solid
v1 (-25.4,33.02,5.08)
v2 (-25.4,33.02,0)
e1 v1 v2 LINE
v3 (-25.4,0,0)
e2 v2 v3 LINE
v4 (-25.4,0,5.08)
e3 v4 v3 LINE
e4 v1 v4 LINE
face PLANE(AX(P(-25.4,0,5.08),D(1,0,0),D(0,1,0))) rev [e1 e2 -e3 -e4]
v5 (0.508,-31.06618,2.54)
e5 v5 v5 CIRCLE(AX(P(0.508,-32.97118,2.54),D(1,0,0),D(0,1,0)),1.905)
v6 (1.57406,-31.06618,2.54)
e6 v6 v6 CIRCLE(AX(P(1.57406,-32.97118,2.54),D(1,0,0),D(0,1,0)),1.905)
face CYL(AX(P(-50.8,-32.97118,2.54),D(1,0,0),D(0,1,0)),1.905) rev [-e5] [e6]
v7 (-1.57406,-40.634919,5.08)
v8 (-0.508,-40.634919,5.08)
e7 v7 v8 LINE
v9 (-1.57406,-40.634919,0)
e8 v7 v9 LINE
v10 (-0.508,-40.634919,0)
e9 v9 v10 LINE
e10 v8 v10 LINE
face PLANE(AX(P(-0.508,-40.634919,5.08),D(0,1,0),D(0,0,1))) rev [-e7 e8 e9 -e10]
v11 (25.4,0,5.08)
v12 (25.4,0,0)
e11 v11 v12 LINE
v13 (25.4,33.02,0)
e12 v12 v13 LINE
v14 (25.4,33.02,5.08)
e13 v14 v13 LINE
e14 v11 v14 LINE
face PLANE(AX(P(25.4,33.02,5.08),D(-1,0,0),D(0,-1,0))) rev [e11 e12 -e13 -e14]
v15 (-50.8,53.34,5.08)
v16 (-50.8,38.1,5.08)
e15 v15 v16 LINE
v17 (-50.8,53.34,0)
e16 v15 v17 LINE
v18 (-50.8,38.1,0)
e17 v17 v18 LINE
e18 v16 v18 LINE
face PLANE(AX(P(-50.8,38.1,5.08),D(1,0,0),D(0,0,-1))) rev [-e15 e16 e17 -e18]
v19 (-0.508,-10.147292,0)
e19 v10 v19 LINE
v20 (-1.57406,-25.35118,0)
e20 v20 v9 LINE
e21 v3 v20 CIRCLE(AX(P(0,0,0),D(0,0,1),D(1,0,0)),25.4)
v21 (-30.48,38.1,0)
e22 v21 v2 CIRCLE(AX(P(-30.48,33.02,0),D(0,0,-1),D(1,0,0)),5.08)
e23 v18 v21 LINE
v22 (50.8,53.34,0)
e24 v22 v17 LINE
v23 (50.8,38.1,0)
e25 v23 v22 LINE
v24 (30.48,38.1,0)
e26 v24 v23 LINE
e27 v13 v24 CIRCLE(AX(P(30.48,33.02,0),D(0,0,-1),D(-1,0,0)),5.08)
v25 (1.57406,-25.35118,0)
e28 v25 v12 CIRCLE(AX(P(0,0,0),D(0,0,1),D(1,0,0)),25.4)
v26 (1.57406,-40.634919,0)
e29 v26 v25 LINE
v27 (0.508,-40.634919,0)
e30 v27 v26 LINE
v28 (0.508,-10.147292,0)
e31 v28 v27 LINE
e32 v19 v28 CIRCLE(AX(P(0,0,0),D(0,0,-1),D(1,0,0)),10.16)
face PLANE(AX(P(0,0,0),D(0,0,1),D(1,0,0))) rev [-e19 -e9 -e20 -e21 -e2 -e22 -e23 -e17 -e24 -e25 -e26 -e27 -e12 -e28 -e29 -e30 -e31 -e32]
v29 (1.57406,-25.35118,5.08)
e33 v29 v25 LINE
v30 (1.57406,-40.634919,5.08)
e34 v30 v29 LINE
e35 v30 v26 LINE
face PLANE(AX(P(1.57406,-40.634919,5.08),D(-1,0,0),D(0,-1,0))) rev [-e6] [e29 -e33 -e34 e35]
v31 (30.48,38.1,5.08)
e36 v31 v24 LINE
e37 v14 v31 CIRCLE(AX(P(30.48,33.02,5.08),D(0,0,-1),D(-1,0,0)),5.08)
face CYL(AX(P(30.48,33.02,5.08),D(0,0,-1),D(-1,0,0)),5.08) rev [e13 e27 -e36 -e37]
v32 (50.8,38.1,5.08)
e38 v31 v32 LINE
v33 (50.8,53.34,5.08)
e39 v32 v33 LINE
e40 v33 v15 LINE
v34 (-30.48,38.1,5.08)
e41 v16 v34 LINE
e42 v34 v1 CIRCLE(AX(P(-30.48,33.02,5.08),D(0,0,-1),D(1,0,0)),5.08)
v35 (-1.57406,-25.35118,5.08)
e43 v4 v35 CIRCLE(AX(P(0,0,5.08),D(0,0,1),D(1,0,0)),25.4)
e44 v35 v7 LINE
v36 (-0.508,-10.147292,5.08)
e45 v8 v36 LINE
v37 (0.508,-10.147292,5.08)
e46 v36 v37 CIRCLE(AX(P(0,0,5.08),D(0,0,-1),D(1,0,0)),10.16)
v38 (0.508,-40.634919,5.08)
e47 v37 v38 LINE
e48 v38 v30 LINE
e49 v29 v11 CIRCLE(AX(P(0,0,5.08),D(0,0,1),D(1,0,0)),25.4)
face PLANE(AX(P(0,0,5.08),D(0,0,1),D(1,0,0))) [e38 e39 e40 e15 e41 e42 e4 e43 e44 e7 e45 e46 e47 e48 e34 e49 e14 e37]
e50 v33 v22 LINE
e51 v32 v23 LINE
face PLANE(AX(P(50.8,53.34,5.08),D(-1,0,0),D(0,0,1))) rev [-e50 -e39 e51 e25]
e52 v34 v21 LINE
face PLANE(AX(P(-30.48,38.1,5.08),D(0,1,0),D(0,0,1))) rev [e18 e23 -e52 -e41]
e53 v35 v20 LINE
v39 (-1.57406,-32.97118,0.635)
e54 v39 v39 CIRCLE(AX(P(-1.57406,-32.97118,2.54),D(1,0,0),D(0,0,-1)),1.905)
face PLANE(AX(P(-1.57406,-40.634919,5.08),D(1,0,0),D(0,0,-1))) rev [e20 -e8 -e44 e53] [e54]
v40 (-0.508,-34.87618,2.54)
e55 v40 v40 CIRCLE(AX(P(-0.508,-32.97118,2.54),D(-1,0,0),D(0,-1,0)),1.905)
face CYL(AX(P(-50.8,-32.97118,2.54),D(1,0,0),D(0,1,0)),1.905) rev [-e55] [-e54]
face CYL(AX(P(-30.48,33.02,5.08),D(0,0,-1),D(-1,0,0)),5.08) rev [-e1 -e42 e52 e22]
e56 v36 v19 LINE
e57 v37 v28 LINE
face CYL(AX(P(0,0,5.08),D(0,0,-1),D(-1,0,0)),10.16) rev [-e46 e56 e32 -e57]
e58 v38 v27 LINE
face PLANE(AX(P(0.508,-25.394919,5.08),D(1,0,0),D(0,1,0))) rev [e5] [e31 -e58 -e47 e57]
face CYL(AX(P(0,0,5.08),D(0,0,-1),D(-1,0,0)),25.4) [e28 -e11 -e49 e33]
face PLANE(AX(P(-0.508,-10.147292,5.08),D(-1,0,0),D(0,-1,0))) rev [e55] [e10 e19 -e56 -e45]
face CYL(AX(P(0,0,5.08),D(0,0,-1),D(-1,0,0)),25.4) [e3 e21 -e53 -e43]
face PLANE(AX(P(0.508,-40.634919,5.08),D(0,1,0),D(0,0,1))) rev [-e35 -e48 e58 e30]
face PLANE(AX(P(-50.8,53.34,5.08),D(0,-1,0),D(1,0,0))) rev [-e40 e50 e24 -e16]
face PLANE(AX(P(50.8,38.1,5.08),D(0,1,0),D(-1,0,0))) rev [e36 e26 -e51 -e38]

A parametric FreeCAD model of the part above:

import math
import FreeCAD as App
import Part
import Sketcher

V = App.Vector
Q = App.Units.Quantity

doc = App.newDocument("Part")
body = doc.addObject("PartDesign::Body", "Body")

# Sketch on XY plane
sketch1 = body.newObject("Sketcher::SketchObject", "Sketch")
sketch1.AttachmentSupport = (doc.getObject("XY_Plane"), [""])
sketch1.MapMode = "FlatFace"
sketch1.addGeometry([
    Part.LineSegment(V(-25.4, 33.02, 0), V(-25.4, 0, 0)),  # 0
    Part.ArcOfCircle(Part.Circle(V(0, 0, 0), V(0, 0, 1), 25.4), math.radians(180), math.radians(266.447054)),  # 1
    Part.LineSegment(V(-1.57406, -25.35118, 0), V(-1.57406, -40.634919, 0)),  # 2
    Part.LineSegment(V(-1.57406, -40.634919, 0), V(-0.508, -40.634919, 0)),  # 3
    Part.LineSegment(V(-0.508, -40.634919, 0), V(-0.508, -10.147292, 0)),  # 4
    Part.ArcOfCircle(Part.Circle(V(0, 0, 0), V(0, 0, 1), 10.16), math.radians(-87.134016), math.radians(267.134016)),  # 5
    Part.LineSegment(V(0.508, -10.147292, 0), V(0.508, -40.634919, 0)),  # 6
    Part.LineSegment(V(0.508, -40.634919, 0), V(1.57406, -40.634919, 0)),  # 7
    Part.LineSegment(V(1.57406, -40.634919, 0), V(1.57406, -25.35118, 0)),  # 8
    Part.ArcOfCircle(Part.Circle(V(0, 0, 0), V(0, 0, 1), 25.4), math.radians(-86.447054), math.radians(0)),  # 9
    Part.LineSegment(V(25.4, 0, 0), V(25.4, 33.02, 0)),  # 10
    Part.ArcOfCircle(Part.Circle(V(30.48, 33.02, 0), V(0, 0, 1), 5.08), math.radians(90), math.radians(180)),  # 11
    Part.LineSegment(V(30.48, 38.1, 0), V(50.8, 38.1, 0)),  # 12
    Part.LineSegment(V(50.8, 38.1, 0), V(50.8, 53.34, 0)),  # 13
    Part.LineSegment(V(50.8, 53.34, 0), V(-50.8, 53.34, 0)),  # 14
    Part.LineSegment(V(-50.8, 53.34, 0), V(-50.8, 38.1, 0)),  # 15
    Part.LineSegment(V(-50.8, 38.1, 0), V(-30.48, 38.1, 0)),  # 16
    Part.ArcOfCircle(Part.Circle(V(-30.48, 33.02, 0), V(0, 0, 1), 5.08), math.radians(0), math.radians(90)),  # 17
], False)
sketch1.addConstraint([
    Sketcher.Constraint("Tangent", 0, 2, 1, 1),
    Sketcher.Constraint("Coincident", 1, 2, 2, 1),
    Sketcher.Constraint("Coincident", 2, 2, 3, 1),
    Sketcher.Constraint("Coincident", 3, 2, 4, 1),
    Sketcher.Constraint("Coincident", 4, 2, 5, 2),
    Sketcher.Constraint("Coincident", 5, 1, 6, 1),
    Sketcher.Constraint("Coincident", 6, 2, 7, 1),
    Sketcher.Constraint("Coincident", 7, 2, 8, 1),
    Sketcher.Constraint("Coincident", 8, 2, 9, 1),
    Sketcher.Constraint("Tangent", 9, 2, 10, 1),
    Sketcher.Constraint("Tangent", 10, 2, 11, 2),
    Sketcher.Constraint("Tangent", 11, 1, 12, 1),
    Sketcher.Constraint("Coincident", 12, 2, 13, 1),
    Sketcher.Constraint("Coincident", 13, 2, 14, 1),
    Sketcher.Constraint("Coincident", 14, 2, 15, 1),
    Sketcher.Constraint("Coincident", 15, 2, 16, 1),
    Sketcher.Constraint("Tangent", 16, 2, 17, 2),
    Sketcher.Constraint("Tangent", 17, 1, 0, 1),
    Sketcher.Constraint("Vertical", 0),
    Sketcher.Constraint("Vertical", 2),
    Sketcher.Constraint("Horizontal", 3),
    Sketcher.Constraint("Vertical", 4),
    Sketcher.Constraint("Vertical", 6),
    Sketcher.Constraint("Horizontal", 7),
    Sketcher.Constraint("Vertical", 8),
    Sketcher.Constraint("Vertical", 10),
    Sketcher.Constraint("Horizontal", 12),
    Sketcher.Constraint("Vertical", 13),
    Sketcher.Constraint("Horizontal", 14),
    Sketcher.Constraint("Vertical", 15),
    Sketcher.Constraint("Horizontal", 16),
    Sketcher.Constraint("Coincident", 1, 3, -1, 1),
    Sketcher.Constraint("Coincident", 5, 3, -1, 1),
    Sketcher.Constraint("Coincident", 9, 3, -1, 1),
    Sketcher.Constraint("Equal", 1, 9),
    Sketcher.Constraint("Equal", 11, 17),
    Sketcher.Constraint("Symmetric", 3, 2, 6, 2, -2),
    Sketcher.Constraint("Symmetric", 12, 2, 15, 2, -2),
    Sketcher.Constraint("Horizontal", 1, 2, 8, 2),
    Sketcher.Constraint("Radius", 1, Q("1 in")),
    Sketcher.Constraint("Radius", 5, Q("0.4 in")),
    Sketcher.Constraint("Radius", 11, Q("0.2 in")),
    Sketcher.Constraint("DistanceX", 14, 2, 14, 1, Q("4 in")),
    Sketcher.Constraint("DistanceY", 0, 2, 0, 1, Q("1.3 in")),
    Sketcher.Constraint("DistanceY", 13, 1, 13, 2, Q("0.6 in")),
    Sketcher.Constraint("DistanceX", 3, 2, -1, 1, Q("0.02 in")),
    Sketcher.Constraint("DistanceY", 2, 2, -1, 1, Q("1.5998 in")),
    Sketcher.Constraint("DistanceX", 3, 1, 3, 2, 1.06606),
])
pad1 = body.newObject("PartDesign::Pad", "Pad")
pad1.Profile = sketch1
pad1.Length = Q("0.2 in")

# Sketch on YZ plane
sketch2 = body.newObject("Sketcher::SketchObject", "Sketch001")
sketch2.AttachmentSupport = (doc.getObject("YZ_Plane"), [""])
sketch2.MapMode = "FlatFace"
sketch2.AttachmentOffset = App.Placement(V(0, 0, 1.57406), App.Rotation())
sketch2.addGeometry(Part.Circle(V(-32.97118, 2.54, 0), V(0, 0, 1), 1.905), False)
sketch2.addConstraint([
    Sketcher.Constraint("Diameter", 0, Q("0.15 in")),
    Sketcher.Constraint("DistanceY", -1, 1, 0, 3, Q("0.1 in")),
    Sketcher.Constraint("DistanceX", 0, 3, -1, 1, 32.97118),
])
pocket1 = body.newObject("PartDesign::Pocket", "Pocket")
pocket1.Profile = sketch2
pocket1.Type = "ThroughAll"

doc.recompute()
